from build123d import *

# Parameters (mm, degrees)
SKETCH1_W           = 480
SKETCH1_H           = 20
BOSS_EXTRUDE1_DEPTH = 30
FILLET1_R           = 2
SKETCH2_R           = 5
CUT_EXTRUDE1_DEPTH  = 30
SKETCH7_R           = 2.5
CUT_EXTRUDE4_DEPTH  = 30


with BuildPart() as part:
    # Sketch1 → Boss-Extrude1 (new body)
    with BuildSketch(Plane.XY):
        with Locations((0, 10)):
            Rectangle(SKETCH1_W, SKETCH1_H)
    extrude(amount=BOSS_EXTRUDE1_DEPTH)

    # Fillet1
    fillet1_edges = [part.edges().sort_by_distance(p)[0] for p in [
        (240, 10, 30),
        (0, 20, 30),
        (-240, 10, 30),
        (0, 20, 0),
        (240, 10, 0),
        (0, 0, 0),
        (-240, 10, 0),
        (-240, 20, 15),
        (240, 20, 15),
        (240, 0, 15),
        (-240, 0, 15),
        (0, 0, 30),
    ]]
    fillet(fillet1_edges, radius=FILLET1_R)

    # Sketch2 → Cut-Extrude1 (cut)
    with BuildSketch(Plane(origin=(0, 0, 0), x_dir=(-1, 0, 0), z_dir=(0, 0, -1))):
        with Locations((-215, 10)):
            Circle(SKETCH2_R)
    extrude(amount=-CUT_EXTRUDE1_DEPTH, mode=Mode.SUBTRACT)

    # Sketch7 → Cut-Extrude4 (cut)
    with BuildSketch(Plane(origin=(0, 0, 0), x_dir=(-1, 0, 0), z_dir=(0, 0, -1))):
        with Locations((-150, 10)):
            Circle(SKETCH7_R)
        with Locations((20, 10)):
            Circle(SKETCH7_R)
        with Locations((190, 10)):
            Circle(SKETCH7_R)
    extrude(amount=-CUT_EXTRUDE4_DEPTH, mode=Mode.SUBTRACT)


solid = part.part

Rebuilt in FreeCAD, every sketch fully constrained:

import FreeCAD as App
import Part
import Sketcher
from FreeCAD import Vector
Q = App.Units.Quantity

doc = App.newDocument("Part")
body = doc.addObject("PartDesign::Body", "Body")

# Sketch on XY plane
sketch1 = body.newObject("Sketcher::SketchObject", "Sketch")
sketch1.AttachmentSupport = (doc.getObject("XY_Plane"), [""])
sketch1.MapMode = "FlatFace"
sketch1.addGeometry([
    Part.LineSegment(Vector(-240, 20, 0), Vector(-240, 0, 0)),
    Part.LineSegment(Vector(-240, 0, 0), Vector(240, 0, 0)),
    Part.LineSegment(Vector(240, 0, 0), Vector(240, 20, 0)),
    Part.LineSegment(Vector(240, 20, 0), Vector(-240, 20, 0)),
], False)
sketch1.addConstraint([
    Sketcher.Constraint("Coincident", 0, 2, 1, 1),
    Sketcher.Constraint("Coincident", 1, 2, 2, 1),
    Sketcher.Constraint("Coincident", 2, 2, 3, 1),
    Sketcher.Constraint("Coincident", 3, 2, 0, 1),
    Sketcher.Constraint("Vertical", 0),
    Sketcher.Constraint("Horizontal", 1),
    Sketcher.Constraint("Vertical", 2),
    Sketcher.Constraint("Horizontal", 3),
    Sketcher.Constraint("Symmetric", 0, 2, 1, 2, -1, 1),
    Sketcher.Constraint("DistanceX", 1, 1, 1, 2, Q("480 mm")),
    Sketcher.Constraint("DistanceY", 0, 2, 0, 1, Q("20 mm")),
])
pad1 = body.newObject("PartDesign::Pad", "Pad")
pad1.Profile = sketch1
pad1.Length = 30
doc.recompute()

fillet = body.newObject("PartDesign::Fillet", "Fillet")
fillet.Base = (pad1, ["Edge1"])
fillet.UseAllEdges = True
fillet.Radius = 2

# Sketch on XY plane
sketch2 = body.newObject("Sketcher::SketchObject", "Sketch001")
sketch2.AttachmentSupport = (doc.getObject("XY_Plane"), [""])
sketch2.MapMode = "FlatFace"
sketch2.addGeometry(Part.Circle(Vector(215, 10, 0), Vector(0, 0, 1), 5), False)
sketch2.addConstraint([
    Sketcher.Constraint("Diameter", 0, Q("10 mm")),
    Sketcher.Constraint("DistanceX", -1, 1, 0, 3, Q("215 mm")),
    Sketcher.Constraint("DistanceY", -1, 1, 0, 3, Q("10 mm")),
])
pocket1 = body.newObject("PartDesign::Pocket", "Pocket")
pocket1.Profile = sketch2
pocket1.Length = 30
pocket1.Reversed = True

# Sketch on XY plane
sketch3 = body.newObject("Sketcher::SketchObject", "Sketch002")
sketch3.AttachmentSupport = (doc.getObject("XY_Plane"), [""])
sketch3.MapMode = "FlatFace"
sketch3.addGeometry([
    Part.Circle(Vector(150, 10, 0), Vector(0, 0, 1), 2.5),
    Part.Circle(Vector(-20, 10, 0), Vector(0, 0, 1), 2.5),
    Part.Circle(Vector(-190, 10, 0), Vector(0, 0, 1), 2.5),
], False)
sketch3.addConstraint([
    Sketcher.Constraint("Equal", 0, 1),
    Sketcher.Constraint("Equal", 1, 2),
    Sketcher.Constraint("Horizontal", 0, 3, 1, 3),
    Sketcher.Constraint("Horizontal", 1, 3, 2, 3),
    Sketcher.Constraint("Diameter", 0, Q("5 mm")),
    Sketcher.Constraint("DistanceX", -1, 1, 0, 3, Q("150 mm")),
    Sketcher.Constraint("DistanceY", -1, 1, 0, 3, Q("10 mm")),
    Sketcher.Constraint("DistanceX", 1, 3, -1, 1, Q("20 mm")),
    Sketcher.Constraint("DistanceX", 2, 3, -1, 1, Q("190 mm")),
])
pocket2 = body.newObject("PartDesign::Pocket", "Pocket001")
pocket2.Profile = sketch3
pocket2.Length = 30
pocket2.Reversed = True

doc.recompute()
